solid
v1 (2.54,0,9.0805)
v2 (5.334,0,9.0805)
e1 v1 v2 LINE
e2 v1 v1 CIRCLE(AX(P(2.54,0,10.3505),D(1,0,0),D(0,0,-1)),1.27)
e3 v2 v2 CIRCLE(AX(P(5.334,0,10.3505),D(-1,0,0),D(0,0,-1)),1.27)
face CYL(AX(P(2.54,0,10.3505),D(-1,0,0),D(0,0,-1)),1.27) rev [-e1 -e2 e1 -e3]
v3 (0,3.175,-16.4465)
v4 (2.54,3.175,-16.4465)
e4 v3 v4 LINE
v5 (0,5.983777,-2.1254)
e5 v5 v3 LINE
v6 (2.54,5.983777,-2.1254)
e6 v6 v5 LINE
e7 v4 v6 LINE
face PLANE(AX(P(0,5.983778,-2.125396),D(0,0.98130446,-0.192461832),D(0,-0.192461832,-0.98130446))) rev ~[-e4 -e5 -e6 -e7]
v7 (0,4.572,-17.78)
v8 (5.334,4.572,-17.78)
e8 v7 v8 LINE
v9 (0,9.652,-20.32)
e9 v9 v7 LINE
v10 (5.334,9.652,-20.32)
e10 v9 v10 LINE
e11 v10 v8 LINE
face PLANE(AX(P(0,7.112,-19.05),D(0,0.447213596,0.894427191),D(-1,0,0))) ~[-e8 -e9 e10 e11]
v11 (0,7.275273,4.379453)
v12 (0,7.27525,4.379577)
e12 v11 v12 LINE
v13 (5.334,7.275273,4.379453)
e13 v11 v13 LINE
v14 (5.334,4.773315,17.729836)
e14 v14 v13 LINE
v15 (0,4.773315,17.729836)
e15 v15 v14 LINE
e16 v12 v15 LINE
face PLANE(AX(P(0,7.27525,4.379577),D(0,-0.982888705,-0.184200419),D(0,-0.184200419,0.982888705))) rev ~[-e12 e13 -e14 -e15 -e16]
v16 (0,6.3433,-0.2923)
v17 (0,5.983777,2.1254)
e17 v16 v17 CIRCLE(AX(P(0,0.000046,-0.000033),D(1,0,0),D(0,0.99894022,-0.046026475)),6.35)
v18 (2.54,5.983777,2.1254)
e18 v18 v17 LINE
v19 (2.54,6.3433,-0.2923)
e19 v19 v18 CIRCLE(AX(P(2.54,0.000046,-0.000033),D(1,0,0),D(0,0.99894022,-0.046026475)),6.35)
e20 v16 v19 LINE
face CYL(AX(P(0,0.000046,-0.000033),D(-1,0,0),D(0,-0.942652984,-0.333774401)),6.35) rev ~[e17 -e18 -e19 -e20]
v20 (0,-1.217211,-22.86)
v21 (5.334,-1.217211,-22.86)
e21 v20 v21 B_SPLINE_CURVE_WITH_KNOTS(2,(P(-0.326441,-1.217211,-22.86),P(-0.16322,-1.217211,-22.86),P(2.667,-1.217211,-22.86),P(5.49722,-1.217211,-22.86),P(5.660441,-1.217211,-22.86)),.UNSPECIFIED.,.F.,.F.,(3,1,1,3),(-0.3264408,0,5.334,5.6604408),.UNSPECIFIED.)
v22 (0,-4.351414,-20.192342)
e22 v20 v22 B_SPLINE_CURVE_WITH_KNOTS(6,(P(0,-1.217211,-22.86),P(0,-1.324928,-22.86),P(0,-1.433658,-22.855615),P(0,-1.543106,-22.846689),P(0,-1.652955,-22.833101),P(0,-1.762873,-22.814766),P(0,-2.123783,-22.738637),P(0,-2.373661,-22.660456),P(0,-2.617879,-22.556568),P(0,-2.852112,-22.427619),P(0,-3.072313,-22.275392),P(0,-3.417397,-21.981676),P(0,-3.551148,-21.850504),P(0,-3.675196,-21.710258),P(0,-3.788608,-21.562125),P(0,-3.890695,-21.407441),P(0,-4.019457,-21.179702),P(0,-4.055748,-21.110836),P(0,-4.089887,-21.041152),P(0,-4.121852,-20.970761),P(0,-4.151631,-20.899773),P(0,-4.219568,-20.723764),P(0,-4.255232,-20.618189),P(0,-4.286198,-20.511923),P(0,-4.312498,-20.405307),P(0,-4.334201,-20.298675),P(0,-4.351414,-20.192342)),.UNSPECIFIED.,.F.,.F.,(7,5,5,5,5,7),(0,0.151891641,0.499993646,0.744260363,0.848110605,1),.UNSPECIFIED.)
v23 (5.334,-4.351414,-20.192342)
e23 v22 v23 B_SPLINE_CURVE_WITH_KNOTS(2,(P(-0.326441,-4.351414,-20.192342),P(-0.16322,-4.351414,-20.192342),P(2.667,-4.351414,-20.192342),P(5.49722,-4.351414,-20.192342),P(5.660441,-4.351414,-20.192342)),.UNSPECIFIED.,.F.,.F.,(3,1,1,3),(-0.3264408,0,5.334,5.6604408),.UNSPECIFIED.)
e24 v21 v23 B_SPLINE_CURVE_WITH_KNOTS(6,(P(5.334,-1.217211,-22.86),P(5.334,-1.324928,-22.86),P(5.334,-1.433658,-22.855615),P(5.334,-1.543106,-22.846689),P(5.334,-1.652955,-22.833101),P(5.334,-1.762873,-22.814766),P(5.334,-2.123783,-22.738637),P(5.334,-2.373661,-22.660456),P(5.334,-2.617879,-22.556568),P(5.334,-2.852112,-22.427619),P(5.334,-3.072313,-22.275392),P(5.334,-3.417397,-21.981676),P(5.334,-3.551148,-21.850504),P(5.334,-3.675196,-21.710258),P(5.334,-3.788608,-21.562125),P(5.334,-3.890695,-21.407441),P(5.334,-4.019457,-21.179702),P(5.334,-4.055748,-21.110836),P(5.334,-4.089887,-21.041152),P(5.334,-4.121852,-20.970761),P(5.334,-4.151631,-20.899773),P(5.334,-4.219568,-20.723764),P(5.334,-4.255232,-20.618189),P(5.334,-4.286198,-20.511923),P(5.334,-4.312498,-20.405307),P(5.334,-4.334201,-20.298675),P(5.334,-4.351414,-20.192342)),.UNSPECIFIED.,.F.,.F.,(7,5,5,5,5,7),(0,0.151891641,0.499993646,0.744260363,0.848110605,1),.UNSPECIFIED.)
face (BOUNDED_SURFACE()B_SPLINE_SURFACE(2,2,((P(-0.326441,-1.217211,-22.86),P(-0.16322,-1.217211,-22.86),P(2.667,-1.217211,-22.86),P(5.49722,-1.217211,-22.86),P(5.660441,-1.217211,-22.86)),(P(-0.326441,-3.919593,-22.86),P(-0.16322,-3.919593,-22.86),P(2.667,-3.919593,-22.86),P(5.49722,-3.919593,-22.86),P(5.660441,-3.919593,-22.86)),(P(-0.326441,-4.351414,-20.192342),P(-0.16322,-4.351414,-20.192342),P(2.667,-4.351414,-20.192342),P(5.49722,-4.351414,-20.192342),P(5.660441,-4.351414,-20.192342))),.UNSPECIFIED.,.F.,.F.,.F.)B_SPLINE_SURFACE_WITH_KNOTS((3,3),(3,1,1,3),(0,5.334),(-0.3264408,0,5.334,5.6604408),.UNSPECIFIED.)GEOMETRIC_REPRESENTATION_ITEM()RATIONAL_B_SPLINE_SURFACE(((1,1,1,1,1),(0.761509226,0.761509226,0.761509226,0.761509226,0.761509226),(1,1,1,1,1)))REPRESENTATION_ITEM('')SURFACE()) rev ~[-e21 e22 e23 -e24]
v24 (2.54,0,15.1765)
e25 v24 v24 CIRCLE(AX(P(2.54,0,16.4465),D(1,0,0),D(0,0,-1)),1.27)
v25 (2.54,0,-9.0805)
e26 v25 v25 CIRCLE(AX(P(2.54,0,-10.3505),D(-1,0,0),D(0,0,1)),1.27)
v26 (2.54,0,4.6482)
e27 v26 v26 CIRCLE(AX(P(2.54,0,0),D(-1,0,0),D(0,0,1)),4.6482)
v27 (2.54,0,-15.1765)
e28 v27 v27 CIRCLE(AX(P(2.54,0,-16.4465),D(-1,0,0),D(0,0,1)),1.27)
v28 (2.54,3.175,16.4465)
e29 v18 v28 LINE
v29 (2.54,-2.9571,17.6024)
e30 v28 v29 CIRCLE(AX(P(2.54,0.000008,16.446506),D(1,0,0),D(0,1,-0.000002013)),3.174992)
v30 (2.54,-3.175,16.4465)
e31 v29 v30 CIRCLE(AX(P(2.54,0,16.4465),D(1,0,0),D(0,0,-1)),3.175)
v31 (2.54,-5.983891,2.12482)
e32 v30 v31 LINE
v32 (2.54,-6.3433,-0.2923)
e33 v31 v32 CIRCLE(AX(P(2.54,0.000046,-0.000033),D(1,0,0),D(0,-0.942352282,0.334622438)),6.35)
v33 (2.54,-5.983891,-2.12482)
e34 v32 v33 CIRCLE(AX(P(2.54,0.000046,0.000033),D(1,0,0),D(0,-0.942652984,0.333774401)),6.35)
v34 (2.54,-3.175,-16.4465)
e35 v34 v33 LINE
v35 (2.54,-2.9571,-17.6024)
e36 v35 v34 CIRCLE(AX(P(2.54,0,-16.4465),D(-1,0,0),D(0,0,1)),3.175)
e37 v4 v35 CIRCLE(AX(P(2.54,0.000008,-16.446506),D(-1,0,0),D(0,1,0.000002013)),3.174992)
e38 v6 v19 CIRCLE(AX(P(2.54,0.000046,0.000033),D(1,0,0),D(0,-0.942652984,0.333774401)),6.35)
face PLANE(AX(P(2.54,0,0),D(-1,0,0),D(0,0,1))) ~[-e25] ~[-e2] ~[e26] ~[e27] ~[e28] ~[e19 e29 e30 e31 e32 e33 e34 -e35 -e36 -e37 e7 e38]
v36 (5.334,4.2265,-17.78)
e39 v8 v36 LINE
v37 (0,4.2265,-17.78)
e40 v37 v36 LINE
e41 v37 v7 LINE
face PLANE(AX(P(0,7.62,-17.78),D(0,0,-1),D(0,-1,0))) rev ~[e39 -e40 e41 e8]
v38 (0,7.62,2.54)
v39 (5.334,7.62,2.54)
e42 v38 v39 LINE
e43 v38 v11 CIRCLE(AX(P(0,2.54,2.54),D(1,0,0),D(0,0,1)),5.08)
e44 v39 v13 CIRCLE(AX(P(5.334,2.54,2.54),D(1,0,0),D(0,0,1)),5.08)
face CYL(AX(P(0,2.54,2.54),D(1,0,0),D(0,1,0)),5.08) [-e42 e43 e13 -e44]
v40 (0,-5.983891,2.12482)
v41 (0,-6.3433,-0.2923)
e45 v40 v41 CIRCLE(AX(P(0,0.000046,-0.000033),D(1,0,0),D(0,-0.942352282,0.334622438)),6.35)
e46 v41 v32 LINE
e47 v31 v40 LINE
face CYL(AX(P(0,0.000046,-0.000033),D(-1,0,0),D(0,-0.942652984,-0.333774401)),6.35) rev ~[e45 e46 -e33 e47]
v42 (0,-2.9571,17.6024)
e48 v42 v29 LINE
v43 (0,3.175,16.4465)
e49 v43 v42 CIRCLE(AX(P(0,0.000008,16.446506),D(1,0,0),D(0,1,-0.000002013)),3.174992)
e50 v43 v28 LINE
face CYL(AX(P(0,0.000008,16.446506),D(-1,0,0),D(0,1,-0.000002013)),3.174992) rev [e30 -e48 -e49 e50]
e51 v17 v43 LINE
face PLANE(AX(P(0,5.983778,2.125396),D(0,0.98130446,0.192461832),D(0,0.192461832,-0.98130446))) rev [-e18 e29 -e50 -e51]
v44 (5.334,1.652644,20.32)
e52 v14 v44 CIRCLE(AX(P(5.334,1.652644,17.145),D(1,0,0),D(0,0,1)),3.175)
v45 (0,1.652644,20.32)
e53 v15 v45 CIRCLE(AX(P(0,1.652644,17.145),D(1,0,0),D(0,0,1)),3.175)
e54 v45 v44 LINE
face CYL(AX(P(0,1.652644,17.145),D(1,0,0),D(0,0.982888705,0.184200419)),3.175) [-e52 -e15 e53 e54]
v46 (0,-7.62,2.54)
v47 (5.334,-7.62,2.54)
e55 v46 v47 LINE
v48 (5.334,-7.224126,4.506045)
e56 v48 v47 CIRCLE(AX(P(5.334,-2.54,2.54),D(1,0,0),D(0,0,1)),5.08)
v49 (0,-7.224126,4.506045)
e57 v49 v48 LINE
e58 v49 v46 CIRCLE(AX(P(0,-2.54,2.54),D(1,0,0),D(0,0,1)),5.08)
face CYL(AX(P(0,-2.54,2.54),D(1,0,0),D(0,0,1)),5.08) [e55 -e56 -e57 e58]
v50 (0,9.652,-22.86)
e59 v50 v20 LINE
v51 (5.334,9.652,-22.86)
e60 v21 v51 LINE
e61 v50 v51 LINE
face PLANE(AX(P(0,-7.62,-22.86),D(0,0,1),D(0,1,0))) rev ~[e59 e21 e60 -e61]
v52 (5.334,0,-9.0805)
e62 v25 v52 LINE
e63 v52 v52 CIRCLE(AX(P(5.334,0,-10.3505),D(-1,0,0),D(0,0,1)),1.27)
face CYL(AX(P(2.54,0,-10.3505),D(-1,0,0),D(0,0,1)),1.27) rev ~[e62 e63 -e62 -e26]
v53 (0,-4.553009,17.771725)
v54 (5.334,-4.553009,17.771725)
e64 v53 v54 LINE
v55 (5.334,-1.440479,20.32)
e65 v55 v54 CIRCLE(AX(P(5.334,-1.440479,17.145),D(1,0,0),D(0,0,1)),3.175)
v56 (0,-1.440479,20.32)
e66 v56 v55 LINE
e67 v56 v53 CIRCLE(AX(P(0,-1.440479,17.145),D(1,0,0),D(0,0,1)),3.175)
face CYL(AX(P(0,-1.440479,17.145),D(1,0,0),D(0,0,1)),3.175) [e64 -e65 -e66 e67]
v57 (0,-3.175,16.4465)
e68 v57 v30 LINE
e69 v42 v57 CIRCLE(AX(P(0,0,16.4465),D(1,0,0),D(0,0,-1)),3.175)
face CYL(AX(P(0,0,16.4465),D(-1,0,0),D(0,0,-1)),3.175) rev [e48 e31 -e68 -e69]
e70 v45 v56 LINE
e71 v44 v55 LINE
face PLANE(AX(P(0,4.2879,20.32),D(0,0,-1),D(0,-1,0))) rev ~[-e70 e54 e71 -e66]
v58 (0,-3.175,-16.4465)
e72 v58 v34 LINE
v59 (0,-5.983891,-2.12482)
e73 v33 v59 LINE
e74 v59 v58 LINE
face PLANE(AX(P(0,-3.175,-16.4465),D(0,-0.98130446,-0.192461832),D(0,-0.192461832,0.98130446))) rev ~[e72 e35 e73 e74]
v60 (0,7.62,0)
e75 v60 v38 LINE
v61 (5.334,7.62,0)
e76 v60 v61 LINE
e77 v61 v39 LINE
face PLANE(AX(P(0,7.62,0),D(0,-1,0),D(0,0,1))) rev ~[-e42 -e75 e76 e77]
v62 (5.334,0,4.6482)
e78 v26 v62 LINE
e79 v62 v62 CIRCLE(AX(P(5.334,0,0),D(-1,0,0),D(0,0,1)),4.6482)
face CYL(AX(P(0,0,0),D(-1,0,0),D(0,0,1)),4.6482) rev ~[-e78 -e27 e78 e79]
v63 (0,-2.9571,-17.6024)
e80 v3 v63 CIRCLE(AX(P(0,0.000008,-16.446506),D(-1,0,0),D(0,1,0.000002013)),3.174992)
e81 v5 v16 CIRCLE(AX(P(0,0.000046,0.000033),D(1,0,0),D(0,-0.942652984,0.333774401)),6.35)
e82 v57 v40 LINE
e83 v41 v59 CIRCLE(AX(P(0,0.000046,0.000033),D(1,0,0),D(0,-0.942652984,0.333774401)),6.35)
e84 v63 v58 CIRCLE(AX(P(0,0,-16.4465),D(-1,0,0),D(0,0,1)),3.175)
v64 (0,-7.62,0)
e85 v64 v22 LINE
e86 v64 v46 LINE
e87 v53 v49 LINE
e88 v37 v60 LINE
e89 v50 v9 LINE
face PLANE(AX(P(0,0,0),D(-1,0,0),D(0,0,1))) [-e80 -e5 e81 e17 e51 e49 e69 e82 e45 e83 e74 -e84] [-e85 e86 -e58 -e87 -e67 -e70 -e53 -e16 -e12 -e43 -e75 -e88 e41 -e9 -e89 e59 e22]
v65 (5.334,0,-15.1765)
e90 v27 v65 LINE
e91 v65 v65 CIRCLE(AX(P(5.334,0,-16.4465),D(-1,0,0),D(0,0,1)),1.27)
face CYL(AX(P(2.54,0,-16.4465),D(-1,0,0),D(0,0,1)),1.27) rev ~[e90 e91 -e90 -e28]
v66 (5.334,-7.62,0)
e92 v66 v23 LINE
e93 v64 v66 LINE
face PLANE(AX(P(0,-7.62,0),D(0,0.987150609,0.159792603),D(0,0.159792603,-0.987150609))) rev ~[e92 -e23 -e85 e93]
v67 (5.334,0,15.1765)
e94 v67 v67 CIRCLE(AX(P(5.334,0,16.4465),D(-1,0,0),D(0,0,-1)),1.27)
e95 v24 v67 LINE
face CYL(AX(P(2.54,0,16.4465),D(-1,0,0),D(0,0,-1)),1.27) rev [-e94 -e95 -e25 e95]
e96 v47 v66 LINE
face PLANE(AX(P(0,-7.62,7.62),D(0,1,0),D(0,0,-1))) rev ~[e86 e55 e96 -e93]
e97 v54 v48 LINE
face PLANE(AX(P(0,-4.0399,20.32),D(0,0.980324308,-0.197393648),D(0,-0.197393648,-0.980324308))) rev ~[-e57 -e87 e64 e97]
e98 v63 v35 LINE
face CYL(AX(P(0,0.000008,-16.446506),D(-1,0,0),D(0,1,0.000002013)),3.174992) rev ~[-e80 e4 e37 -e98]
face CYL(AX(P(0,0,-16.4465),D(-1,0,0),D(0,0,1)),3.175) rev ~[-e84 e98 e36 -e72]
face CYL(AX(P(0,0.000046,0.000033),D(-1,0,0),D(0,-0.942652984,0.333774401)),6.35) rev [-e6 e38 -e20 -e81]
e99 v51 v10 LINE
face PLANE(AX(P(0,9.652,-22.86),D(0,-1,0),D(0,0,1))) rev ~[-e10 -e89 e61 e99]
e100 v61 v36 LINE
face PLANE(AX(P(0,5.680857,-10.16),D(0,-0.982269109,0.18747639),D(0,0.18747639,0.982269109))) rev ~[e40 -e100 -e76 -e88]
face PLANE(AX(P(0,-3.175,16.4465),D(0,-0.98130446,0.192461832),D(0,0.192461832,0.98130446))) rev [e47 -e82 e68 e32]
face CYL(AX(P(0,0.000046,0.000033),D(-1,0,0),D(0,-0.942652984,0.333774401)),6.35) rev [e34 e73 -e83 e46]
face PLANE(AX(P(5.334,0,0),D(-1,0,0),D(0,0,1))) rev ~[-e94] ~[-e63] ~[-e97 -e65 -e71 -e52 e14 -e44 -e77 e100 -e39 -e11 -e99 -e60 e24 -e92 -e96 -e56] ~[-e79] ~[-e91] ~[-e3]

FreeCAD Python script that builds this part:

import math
import FreeCAD as App
import Part
import Sketcher

V = App.Vector
Q = App.Units.Quantity


def edges_at(feature, points):
    """Names of the edges that pass closest to the given points."""
    edges = feature.Shape.Edges
    near = lambda p: min(range(len(edges)), key=lambda i: edges[i].distToShape(Part.Vertex(*p))[0])
    return sorted({f"Edge{near(p) + 1}" for p in points})

doc = App.newDocument("Part")
body = doc.addObject("PartDesign::Body", "Body")

sketch1 = body.newObject("Sketcher::SketchObject", "Sketch")
sketch1.AttachmentSupport = (doc.getObject("YZ_Plane"), [""])
sketch1.MapMode = "FlatFace"
sketch1.addGeometry([
    Part.LineSegment(V(7.62, 0, 0), V(7.62, 7.62, 0)),
    Part.LineSegment(V(7.62, 7.62, 0), V(-7.62, 7.62, 0)),
    Part.LineSegment(V(-7.62, 7.62, 0), V(-7.62, -22.86, 0)),
    Part.LineSegment(V(-7.62, -22.86, 0), V(9.652, -22.86, 0)),
    Part.LineSegment(V(9.652, -22.86, 0), V(9.652, -17.78, 0)),
    Part.LineSegment(V(9.652, -17.78, 0), V(4.2265, -17.78, 0)),
    Part.LineSegment(V(4.2265, -17.78, 0), V(7.62, 0, 0)),
    Part.Circle(V(0, 0, 0), V(0, 0, 1), 3.0734),
], False)
sketch1.addConstraint([
    Sketcher.Constraint("Coincident", 0, 2, 1, 1),
    Sketcher.Constraint("Coincident", 1, 2, 2, 1),
    Sketcher.Constraint("Coincident", 2, 2, 3, 1),
    Sketcher.Constraint("Coincident", 3, 2, 4, 1),
    Sketcher.Constraint("Coincident", 4, 2, 5, 1),
    Sketcher.Constraint("Coincident", 5, 2, 6, 1),
    Sketcher.Constraint("Coincident", 6, 2, 0, 1),
    Sketcher.Constraint("Vertical", 0),
    Sketcher.Constraint("Horizontal", 1),
    Sketcher.Constraint("Vertical", 2),
    Sketcher.Constraint("Horizontal", 3),
    Sketcher.Constraint("Vertical", 4),
    Sketcher.Constraint("Horizontal", 5),
    Sketcher.Constraint("Coincident", 7, 3, -1, 1),
    Sketcher.Constraint("PointOnObject", 6, 2, -1),
    Sketcher.Constraint("Diameter", 7, Q("0.242 in")),
    Sketcher.Constraint("DistanceY", 0, 1, 0, 2, Q("0.3 in")),
    Sketcher.Constraint("DistanceY", 4, 1, 4, 2, Q("0.2 in")),
    Sketcher.Constraint("DistanceX", -1, 1, 0, 2, Q("0.3 in")),
    Sketcher.Constraint("DistanceX", 1, 2, -1, 1, Q("0.3 in")),
    Sketcher.Constraint("DistanceY", 2, 2, -1, 1, Q("0.9 in")),
    Sketcher.Constraint("DistanceX", 0, 2, 3, 2, Q("0.08 in")),
    Sketcher.Constraint("DistanceX", 5, 2, 5, 1, Q("0.2136 in")),
])
pad1 = body.newObject("PartDesign::Pad", "Pad")
pad1.Profile = sketch1
pad1.Length = Q("0.21 in")

sketch2 = body.newObject("Sketcher::SketchObject", "Sketch001")
sketch2.AttachmentSupport = (doc.getObject("YZ_Plane"), [""])
sketch2.MapMode = "FlatFace"
sketch2.addGeometry(Part.Circle(V(0, 0, 0), V(0, 0, 1), 4.6482), False)
sketch2.addConstraint([
    Sketcher.Constraint("Coincident", 0, 3, -1, 1),
    Sketcher.Constraint("Diameter", 0, Q("0.366 in")),
])
pocket1 = body.newObject("PartDesign::Pocket", "Pocket")
pocket1.Profile = sketch2
pocket1.Length = Q("0.21 in")
pocket1.Reversed = True
doc.recompute()

fillet = body.newObject("PartDesign::Fillet", "Fillet")
fillet.Base = (pocket1, edges_at(pocket1, [(2.667, -7.62, -22.86), (2.667, 7.62, 7.62), (2.667, -7.62, 7.62)]))
fillet.Radius = Q("0.2 in")

sketch3 = body.newObject("Sketcher::SketchObject", "Sketch002")
sketch3.AttachmentSupport = (doc.getObject("YZ_Plane"), [""])
sketch3.MapMode = "FlatFace"
sketch3.addGeometry([
    Part.LineSegment(V(-3.175, -16.4465, 0), V(-6.3433, -0.2923, 0)),
    Part.ArcOfCircle(Part.Circle(V(0, 0, 0), V(0, 0, 1), 6.349967), math.radians(-2.63833), math.radians(182.63833)),
    Part.LineSegment(V(6.3433, -0.2923, 0), V(3.175, -16.4465, 0)),
    Part.ArcOfCircle(Part.Circle(V(0, -16.4465, 0), V(0, 0, 1), 3.175), math.radians(-158.649982), math.radians(0)),
    Part.ArcOfCircle(Part.Circle(V(0, -16.4465, 0), V(0, 0, 1), 3.175), math.radians(180), math.radians(201.350018)),
], False)
sketch3.addConstraint([
    Sketcher.Constraint("Coincident", 0, 2, 1, 2),
    Sketcher.Constraint("Coincident", 1, 1, 2, 1),
    Sketcher.Constraint("Coincident", 2, 2, 3, 2),
    Sketcher.Constraint("Tangent", 3, 1, 4, 2),
    Sketcher.Constraint("Coincident", 4, 1, 0, 1),
    Sketcher.Constraint("Coincident", 1, 3, -1, 1),
    Sketcher.Constraint("Equal", 3, 4),
    Sketcher.Constraint("Symmetric", 2, 2, 4, 1, -2),
    Sketcher.Constraint("Horizontal", 0, 2, 1, 1),
    Sketcher.Constraint("Horizontal", 4, 3, 2, 2),
    Sketcher.Constraint("Radius", 1, Q("0.25 in")),
    Sketcher.Constraint("Radius", 3, Q("0.125 in")),
    Sketcher.Constraint("DistanceY", 3, 3, -1, 1, Q("0.6475 in")),
    Sketcher.Constraint("DistanceY", 3, 1, -1, 1, Q("0.693 in")),
    Sketcher.Constraint("DistanceY", 3, 3, 0, 2, Q("0.636 in")),
])
pocket2 = body.newObject("PartDesign::Pocket", "Pocket001")
pocket2.Profile = sketch3
pocket2.Length = Q("0.1 in")
pocket2.Reversed = True

sketch4 = body.newObject("Sketcher::SketchObject", "Sketch003")
sketch4.AttachmentSupport = (doc.getObject("YZ_Plane"), [""])
sketch4.MapMode = "FlatFace"
sketch4.AttachmentOffset = App.Placement(V(0, 0, 0.1 * 25.4), App.Rotation())
sketch4.addGeometry(Part.Circle(V(0, -16.4465, 0), V(0, 0, 1), 1.27), False)
sketch4.addConstraint([
    Sketcher.Constraint("PointOnObject", 0, 3, -2),
    Sketcher.Constraint("Diameter", 0, Q("0.1 in")),
    Sketcher.Constraint("DistanceY", 0, 3, -1, 1, Q("0.6475 in")),
])
pocket3 = body.newObject("PartDesign::Pocket", "Pocket002")
pocket3.Profile = sketch4
pocket3.Length = Q("0.21 in")
pocket3.Reversed = True

sketch5 = body.newObject("Sketcher::SketchObject", "Sketch004")
sketch5.AttachmentSupport = (doc.getObject("YZ_Plane"), [""])
sketch5.MapMode = "FlatFace"
sketch5.addGeometry([
    Part.LineSegment(V(-7.62, -17.78, 0), V(-7.62, 0, 0)),
    Part.LineSegment(V(-7.62, 0, 0), V(-3.952, -22.6598, 0)),
    Part.ArcOfCircle(Part.Circle(V(-2.54, -17.78, 0), V(0, 0, 1), 5.08), math.radians(180), math.radians(253.861876)),
], False)
sketch5.addConstraint([
    Sketcher.Constraint("Coincident", 0, 2, 1, 1),
    Sketcher.Constraint("Coincident", 1, 2, 2, 2),
    Sketcher.Constraint("Tangent", 2, 1, 0, 1),
    Sketcher.Constraint("Vertical", 0),
    Sketcher.Constraint("PointOnObject", 0, 2, -1),
    Sketcher.Constraint("Radius", 2, Q("0.2 in")),
    Sketcher.Constraint("DistanceY", 0, 1, 0, 2, Q("0.7 in")),
    Sketcher.Constraint("DistanceX", 2, 3, -1, 1, Q("0.1 in")),
    Sketcher.Constraint("DistanceX", 1, 2, -1, 1, Q("0.1556 in")),
])
pocket4 = body.newObject("PartDesign::Pocket", "Pocket003")
pocket4.Profile = sketch5
pocket4.Length = Q("0.21 in")
pocket4.Reversed = True
doc.recompute()

fillet2 = body.newObject("PartDesign::Fillet", "Fillet001")
fillet2.Base = (pocket4, edges_at(pocket4, [(2.667, -3.952, -22.66)]))
fillet2.Radius = Q("0.125 in")
doc.recompute()

mirrored = body.newObject("PartDesign::Mirrored", "Mirrored")
mirrored.Originals = [pocket2]
mirrored.MirrorPlane = (doc.getObject("XY_Plane"), [""])
body.Tip = mirrored
doc.recompute()

chamfer = body.newObject("PartDesign::Chamfer", "Chamfer")
chamfer.Base = (mirrored, edges_at(mirrored, [(2.667, 9.652, -17.78)]))
chamfer.ChamferType = "Two distances"
chamfer.Size = Q("0.1 in")
chamfer.Size2 = Q("0.2 in")
chamfer.FlipDirection = True

sketch6 = body.newObject("Sketcher::SketchObject", "Sketch005")
sketch6.AttachmentSupport = (doc.getObject("YZ_Plane"), [""])
sketch6.MapMode = "FlatFace"
sketch6.AttachmentOffset = App.Placement(V(0, 0, 0.1 * 25.4), App.Rotation())
sketch6.addGeometry(Part.Circle(V(0, -10.3505, 0), V(0, 0, 1), 1.27), False)
sketch6.addConstraint([
    Sketcher.Constraint("PointOnObject", 0, 3, -2),
    Sketcher.Constraint("Diameter", 0, Q("0.1 in")),
    Sketcher.Constraint("DistanceY", 0, 3, -1, 1, Q("0.4075 in")),
])
pocket5 = body.newObject("PartDesign::Pocket", "Pocket004")
pocket5.Profile = sketch6
pocket5.Length = Q("0.21 in")
pocket5.Reversed = True

sketch7 = body.newObject("Sketcher::SketchObject", "Sketch006")
sketch7.AttachmentSupport = (doc.getObject("YZ_Plane"), [""])
sketch7.MapMode = "FlatFace"
sketch7.addGeometry([
    Part.LineSegment(V(4.2879, 20.32, 0), V(7.62, 2.54, 0)),
    Part.LineSegment(V(7.62, 2.54, 0), V(5.3798, 2.54, 0)),
    Part.LineSegment(V(5.3798, 2.54, 0), V(5.3798, 5.1026, 0)),
    Part.LineSegment(V(5.3798, 5.1026, 0), V(-5.0345, 5.1026, 0)),
    Part.LineSegment(V(-5.0345, 5.1026, 0), V(-5.0345, 2.54, 0)),
    Part.LineSegment(V(-5.0345, 2.54, 0), V(-7.62, 2.54, 0)),
    Part.LineSegment(V(-7.62, 2.54, 0), V(-4.0399, 20.32, 0)),
    Part.LineSegment(V(-4.0399, 20.32, 0), V(4.2879, 20.32, 0)),
], False)
sketch7.addConstraint([
    Sketcher.Constraint("Coincident", 0, 2, 1, 1),
    Sketcher.Constraint("Coincident", 1, 2, 2, 1),
    Sketcher.Constraint("Coincident", 2, 2, 3, 1),
    Sketcher.Constraint("Coincident", 3, 2, 4, 1),
    Sketcher.Constraint("Coincident", 4, 2, 5, 1),
    Sketcher.Constraint("Coincident", 5, 2, 6, 1),
    Sketcher.Constraint("Coincident", 6, 2, 7, 1),
    Sketcher.Constraint("Coincident", 7, 2, 0, 1),
    Sketcher.Constraint("Horizontal", 1),
    Sketcher.Constraint("Vertical", 2),
    Sketcher.Constraint("Horizontal", 3),
    Sketcher.Constraint("Vertical", 4),
    Sketcher.Constraint("Horizontal", 5),
    Sketcher.Constraint("Horizontal", 7),
    Sketcher.Constraint("Symmetric", 0, 2, 5, 2, -2),
    Sketcher.Constraint("DistanceY", -1, 1, 6, 2, Q("0.8 in")),
    Sketcher.Constraint("DistanceX", 3, 2, 3, 1, Q("0.41 in")),
    Sketcher.Constraint("DistanceX", -1, 1, 0, 2, Q("0.3 in")),
    Sketcher.Constraint("DistanceY", -1, 1, 0, 2, Q("0.1 in")),
    Sketcher.Constraint("DistanceX", 1, 2, 1, 1, Q("0.0882 in")),
    Sketcher.Constraint("DistanceY", 2, 1, 2, 2, Q("0.1009 in")),
    Sketcher.Constraint("DistanceX", 7, 2, 2, 2, Q("0.043 in")),
    Sketcher.Constraint("DistanceX", 7, 1, 7, 2, 8.3278),
])
pad2 = body.newObject("PartDesign::Pad", "Pad001")
pad2.Profile = sketch7
pad2.Length = Q("0.21 in")
doc.recompute()

mirrored2 = body.newObject("PartDesign::Mirrored", "Mirrored001")
mirrored2.Originals = [pocket2, pocket3, pocket5]
mirrored2.MirrorPlane = (doc.getObject("XY_Plane"), [""])
body.Tip = mirrored2
doc.recompute()

fillet3 = body.newObject("PartDesign::Fillet", "Fillet002")
fillet3.Base = (mirrored2, edges_at(mirrored2, [(2.667, 4.288, 20.32), (2.667, -4.04, 20.32)]))
fillet3.Radius = Q("0.125 in")

doc.recompute()
